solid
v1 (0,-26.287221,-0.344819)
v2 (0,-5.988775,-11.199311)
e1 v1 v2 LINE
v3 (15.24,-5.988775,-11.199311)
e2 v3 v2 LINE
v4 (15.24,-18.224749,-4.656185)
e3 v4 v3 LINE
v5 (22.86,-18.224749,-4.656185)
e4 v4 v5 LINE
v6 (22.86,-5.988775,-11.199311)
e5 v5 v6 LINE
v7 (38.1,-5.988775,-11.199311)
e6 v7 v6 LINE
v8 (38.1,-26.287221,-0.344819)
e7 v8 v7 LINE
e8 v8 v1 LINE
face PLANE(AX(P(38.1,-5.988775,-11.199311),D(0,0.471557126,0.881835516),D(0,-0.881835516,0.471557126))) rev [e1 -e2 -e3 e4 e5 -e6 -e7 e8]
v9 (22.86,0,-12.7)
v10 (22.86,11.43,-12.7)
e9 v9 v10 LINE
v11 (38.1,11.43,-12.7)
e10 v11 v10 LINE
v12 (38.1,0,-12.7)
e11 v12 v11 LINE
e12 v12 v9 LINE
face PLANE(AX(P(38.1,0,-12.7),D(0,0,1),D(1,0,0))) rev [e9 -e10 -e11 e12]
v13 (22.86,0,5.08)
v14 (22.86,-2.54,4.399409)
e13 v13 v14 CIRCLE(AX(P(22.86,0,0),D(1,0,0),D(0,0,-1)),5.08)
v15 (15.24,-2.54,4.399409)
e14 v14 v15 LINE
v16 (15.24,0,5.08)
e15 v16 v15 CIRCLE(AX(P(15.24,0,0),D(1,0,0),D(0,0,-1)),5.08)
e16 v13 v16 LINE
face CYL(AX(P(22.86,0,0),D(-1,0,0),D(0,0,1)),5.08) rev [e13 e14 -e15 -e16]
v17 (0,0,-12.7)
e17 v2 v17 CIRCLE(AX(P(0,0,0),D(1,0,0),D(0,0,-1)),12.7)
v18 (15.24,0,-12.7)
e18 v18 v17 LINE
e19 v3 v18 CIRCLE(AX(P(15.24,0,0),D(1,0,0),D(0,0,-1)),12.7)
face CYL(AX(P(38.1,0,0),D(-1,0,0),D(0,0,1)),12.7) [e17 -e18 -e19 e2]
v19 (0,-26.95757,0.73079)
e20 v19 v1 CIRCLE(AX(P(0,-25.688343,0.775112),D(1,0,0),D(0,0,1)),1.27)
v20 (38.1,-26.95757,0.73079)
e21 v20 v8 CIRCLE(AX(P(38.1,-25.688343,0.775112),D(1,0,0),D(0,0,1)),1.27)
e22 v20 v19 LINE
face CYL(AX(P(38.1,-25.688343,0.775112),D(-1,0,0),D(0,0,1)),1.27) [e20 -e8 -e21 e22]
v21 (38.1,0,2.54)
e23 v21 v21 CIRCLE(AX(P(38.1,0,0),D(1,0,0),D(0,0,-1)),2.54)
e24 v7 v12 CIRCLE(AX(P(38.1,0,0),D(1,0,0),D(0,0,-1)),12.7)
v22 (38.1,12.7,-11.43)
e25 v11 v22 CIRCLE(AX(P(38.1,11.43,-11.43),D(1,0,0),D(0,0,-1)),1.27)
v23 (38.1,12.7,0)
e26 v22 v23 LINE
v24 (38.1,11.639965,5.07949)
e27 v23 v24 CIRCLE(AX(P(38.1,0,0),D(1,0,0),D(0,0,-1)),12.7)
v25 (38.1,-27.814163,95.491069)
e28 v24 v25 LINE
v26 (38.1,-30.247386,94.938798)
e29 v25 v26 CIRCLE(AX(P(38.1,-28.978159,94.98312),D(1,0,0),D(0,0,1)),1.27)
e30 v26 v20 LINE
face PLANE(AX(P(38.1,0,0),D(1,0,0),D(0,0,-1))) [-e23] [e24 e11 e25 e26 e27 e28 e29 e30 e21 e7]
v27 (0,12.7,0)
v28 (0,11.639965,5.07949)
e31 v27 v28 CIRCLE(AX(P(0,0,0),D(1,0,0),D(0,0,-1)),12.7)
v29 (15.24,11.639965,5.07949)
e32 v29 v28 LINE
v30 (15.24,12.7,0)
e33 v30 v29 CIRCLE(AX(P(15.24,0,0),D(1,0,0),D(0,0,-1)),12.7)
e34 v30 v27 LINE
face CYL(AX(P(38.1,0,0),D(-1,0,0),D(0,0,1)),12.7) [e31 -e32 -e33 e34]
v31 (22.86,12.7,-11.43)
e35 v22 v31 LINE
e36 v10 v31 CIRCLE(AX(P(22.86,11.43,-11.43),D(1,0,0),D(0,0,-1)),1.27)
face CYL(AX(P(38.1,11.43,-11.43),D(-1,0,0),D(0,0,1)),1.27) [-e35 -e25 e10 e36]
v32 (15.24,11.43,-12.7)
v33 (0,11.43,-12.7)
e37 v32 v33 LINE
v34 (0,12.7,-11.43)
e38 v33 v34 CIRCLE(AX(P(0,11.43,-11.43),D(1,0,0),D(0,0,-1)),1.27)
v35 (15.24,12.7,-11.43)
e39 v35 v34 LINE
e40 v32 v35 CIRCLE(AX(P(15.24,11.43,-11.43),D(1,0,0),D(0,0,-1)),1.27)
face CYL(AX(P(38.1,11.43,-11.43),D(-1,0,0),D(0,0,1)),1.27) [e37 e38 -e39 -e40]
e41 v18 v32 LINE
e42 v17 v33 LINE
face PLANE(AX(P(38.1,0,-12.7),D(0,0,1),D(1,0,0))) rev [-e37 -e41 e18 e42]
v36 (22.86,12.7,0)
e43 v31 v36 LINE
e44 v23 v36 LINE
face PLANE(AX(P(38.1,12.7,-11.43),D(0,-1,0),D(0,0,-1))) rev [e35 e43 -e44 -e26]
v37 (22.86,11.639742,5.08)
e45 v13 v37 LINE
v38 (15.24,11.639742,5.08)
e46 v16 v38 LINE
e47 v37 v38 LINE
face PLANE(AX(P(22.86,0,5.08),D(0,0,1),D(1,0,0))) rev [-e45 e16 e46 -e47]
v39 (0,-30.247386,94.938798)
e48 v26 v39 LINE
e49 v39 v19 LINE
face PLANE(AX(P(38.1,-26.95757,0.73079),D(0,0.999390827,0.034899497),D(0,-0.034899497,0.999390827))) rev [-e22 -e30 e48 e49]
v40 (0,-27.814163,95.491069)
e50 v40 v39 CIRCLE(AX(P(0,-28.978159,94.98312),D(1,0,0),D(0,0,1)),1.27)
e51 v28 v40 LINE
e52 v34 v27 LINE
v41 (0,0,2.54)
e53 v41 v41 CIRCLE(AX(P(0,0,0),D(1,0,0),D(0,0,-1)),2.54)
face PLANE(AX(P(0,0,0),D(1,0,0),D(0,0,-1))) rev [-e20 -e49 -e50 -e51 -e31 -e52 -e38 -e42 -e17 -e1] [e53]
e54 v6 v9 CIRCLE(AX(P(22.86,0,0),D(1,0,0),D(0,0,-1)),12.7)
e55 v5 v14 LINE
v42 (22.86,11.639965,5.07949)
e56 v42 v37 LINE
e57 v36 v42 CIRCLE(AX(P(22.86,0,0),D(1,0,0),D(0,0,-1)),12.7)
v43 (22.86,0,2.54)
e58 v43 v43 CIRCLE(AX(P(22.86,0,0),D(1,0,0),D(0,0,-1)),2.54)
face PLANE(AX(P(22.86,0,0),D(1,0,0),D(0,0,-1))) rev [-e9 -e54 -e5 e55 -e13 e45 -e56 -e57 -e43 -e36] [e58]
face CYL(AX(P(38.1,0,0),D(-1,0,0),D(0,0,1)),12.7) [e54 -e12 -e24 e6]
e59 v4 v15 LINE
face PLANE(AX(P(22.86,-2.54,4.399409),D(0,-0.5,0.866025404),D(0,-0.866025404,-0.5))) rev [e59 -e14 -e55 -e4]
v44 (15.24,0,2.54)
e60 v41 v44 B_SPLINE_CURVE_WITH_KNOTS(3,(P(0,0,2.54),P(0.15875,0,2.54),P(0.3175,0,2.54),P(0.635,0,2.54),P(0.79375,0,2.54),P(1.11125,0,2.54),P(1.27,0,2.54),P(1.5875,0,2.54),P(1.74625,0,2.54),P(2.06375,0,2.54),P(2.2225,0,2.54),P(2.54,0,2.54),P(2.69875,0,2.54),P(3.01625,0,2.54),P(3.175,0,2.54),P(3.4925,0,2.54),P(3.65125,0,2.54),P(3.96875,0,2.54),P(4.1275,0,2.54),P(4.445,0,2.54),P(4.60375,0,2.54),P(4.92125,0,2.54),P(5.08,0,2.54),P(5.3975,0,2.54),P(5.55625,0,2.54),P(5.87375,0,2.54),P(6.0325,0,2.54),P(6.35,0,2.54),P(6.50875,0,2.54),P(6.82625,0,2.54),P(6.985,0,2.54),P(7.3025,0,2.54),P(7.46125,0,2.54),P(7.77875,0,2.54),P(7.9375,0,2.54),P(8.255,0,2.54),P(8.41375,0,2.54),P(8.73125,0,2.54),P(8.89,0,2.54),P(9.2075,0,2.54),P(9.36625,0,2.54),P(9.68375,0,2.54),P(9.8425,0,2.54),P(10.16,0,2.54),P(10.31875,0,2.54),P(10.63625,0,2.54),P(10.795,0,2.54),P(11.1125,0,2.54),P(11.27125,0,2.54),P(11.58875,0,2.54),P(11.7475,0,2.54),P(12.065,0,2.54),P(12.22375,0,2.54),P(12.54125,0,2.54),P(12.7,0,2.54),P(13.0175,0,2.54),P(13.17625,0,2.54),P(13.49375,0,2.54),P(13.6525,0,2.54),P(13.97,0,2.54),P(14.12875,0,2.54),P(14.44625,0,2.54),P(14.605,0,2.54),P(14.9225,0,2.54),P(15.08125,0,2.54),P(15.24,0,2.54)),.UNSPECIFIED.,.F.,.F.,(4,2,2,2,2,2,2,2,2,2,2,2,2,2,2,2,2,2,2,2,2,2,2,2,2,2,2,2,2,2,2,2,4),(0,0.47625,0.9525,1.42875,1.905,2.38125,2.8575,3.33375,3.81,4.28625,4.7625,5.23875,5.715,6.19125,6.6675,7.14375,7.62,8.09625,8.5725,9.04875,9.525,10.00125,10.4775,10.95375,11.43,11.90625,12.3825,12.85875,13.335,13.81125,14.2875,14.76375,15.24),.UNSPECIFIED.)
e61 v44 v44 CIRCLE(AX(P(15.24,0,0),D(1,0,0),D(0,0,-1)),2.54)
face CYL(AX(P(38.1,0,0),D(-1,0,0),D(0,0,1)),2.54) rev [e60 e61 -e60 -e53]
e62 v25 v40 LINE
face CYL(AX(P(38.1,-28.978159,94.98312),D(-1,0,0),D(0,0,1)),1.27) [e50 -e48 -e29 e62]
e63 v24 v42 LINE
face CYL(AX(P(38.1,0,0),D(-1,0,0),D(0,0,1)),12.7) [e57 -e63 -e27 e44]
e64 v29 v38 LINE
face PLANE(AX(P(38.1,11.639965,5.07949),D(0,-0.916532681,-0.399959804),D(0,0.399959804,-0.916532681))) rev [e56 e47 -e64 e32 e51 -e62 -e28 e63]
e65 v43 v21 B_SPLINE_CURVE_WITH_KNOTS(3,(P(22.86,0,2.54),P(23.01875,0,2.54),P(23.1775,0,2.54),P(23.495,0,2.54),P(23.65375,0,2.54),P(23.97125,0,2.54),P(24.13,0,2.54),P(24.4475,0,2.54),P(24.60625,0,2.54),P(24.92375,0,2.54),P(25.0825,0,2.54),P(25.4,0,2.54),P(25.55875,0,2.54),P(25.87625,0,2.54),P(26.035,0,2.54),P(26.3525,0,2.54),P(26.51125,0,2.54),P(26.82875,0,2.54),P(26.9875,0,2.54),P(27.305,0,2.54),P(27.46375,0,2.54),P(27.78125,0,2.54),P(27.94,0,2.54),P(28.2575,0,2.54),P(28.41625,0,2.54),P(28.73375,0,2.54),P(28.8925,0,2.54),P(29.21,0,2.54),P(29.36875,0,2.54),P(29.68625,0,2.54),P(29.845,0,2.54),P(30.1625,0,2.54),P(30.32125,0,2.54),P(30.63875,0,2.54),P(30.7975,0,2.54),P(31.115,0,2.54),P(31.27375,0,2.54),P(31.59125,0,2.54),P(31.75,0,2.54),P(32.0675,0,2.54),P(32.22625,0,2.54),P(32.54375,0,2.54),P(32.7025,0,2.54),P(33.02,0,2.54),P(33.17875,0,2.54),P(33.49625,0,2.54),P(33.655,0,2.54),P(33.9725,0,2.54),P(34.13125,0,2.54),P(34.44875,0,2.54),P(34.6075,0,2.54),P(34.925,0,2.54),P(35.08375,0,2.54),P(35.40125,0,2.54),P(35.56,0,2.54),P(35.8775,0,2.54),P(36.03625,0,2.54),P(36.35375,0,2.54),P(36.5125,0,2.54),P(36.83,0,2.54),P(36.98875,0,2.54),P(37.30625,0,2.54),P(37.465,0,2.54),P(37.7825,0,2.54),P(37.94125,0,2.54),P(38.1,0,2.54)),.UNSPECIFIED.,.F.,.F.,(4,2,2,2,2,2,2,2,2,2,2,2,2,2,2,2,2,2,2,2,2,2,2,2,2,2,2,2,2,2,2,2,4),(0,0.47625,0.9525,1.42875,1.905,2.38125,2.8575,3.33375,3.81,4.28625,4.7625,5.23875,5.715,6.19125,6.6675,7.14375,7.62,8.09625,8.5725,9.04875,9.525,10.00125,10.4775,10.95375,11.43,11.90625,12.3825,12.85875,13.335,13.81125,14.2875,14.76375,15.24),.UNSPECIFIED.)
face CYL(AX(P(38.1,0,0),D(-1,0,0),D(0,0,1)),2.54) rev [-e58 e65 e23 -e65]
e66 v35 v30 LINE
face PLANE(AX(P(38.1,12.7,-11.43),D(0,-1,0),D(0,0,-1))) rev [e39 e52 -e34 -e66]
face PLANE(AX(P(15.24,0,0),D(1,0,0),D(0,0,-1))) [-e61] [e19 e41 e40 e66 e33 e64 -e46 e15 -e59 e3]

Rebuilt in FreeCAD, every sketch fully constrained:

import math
import FreeCAD as App
import Part
import Sketcher
from FreeCAD import Vector
Q = App.Units.Quantity

doc = App.newDocument("Part")
body = doc.addObject("PartDesign::Body", "Body")

sketch1 = doc.addObject("Sketcher::SketchObject", "Sketch")
body.addObject(sketch1)
sketch1.AttachmentSupport = (doc.YZ_Plane, [""])
sketch1.MapMode = "FlatFace"
sketch1.addGeometry(Part.LineSegment(Vector(-26.287221, -0.344819, 0), Vector(-5.988775, -11.199311, 0)), False)
sketch1.addGeometry(Part.ArcOfCircle(Part.Circle(Vector(0, 0, 0), Vector(0, 0, 1), 12.7), math.radians(-118.13542), math.radians(-90)), False)
sketch1.addGeometry(Part.LineSegment(Vector(0, -12.7, 0), Vector(11.43, -12.7, 0)), False)
sketch1.addGeometry(Part.ArcOfCircle(Part.Circle(Vector(11.43, -11.43, 0), Vector(0, 0, 1), 1.27), math.radians(-90), math.radians(0)), False)
sketch1.addGeometry(Part.LineSegment(Vector(12.7, -11.43, 0), Vector(12.7, 0, 0)), False)
sketch1.addGeometry(Part.ArcOfCircle(Part.Circle(Vector(0, 0, 0), Vector(0, 0, 1), 12.7), math.radians(0), math.radians(23.575666)), False)
sketch1.addGeometry(Part.LineSegment(Vector(11.639965, 5.07949, 0), Vector(-27.814163, 95.491069, 0)), False)
sketch1.addGeometry(Part.ArcOfCircle(Part.Circle(Vector(-28.978159, 94.98312, 0), Vector(0, 0, 1), 1.27), math.radians(23.575666), math.radians(182)), False)
sketch1.addGeometry(Part.LineSegment(Vector(-30.247386, 94.938798, 0), Vector(-26.95757, 0.73079, 0)), False)
sketch1.addGeometry(Part.ArcOfCircle(Part.Circle(Vector(-25.688343, 0.775112, 0), Vector(0, 0, 1), 1.27), math.radians(-178), math.radians(-118.135421)), False)
sketch1.addGeometry(Part.Circle(Vector(0, 0, 0), Vector(0, 0, 1), 2.54), False)
sketch1.addConstraint(Sketcher.Constraint("Tangent", 0, 2, 1, 1))
sketch1.addConstraint(Sketcher.Constraint("Tangent", 1, 2, 2, 1))
sketch1.addConstraint(Sketcher.Constraint("Tangent", 2, 2, 3, 1))
sketch1.addConstraint(Sketcher.Constraint("Tangent", 3, 2, 4, 1))
sketch1.addConstraint(Sketcher.Constraint("Tangent", 4, 2, 5, 1))
sketch1.addConstraint(Sketcher.Constraint("Tangent", 5, 2, 6, 1))
sketch1.addConstraint(Sketcher.Constraint("Tangent", 6, 2, 7, 1))
sketch1.addConstraint(Sketcher.Constraint("Tangent", 7, 2, 8, 1))
sketch1.addConstraint(Sketcher.Constraint("Tangent", 8, 2, 9, 1))
sketch1.addConstraint(Sketcher.Constraint("Tangent", 9, 2, 0, 1))
sketch1.addConstraint(Sketcher.Constraint("Horizontal", 2))
sketch1.addConstraint(Sketcher.Constraint("Vertical", 4))
sketch1.addConstraint(Sketcher.Constraint("Coincident", 1, 3, -1, 1))
sketch1.addConstraint(Sketcher.Constraint("Coincident", 5, 3, -1, 1))
sketch1.addConstraint(Sketcher.Constraint("Coincident", 10, 3, -1, 1))
sketch1.addConstraint(Sketcher.Constraint("Equal", 1, 5))
sketch1.addConstraint(Sketcher.Constraint("Equal", 3, 7))
sketch1.addConstraint(Sketcher.Constraint("Equal", 7, 9))
sketch1.addConstraint(Sketcher.Constraint("Diameter", 10, Q("0.2 in")))
sketch1.addConstraint(Sketcher.Constraint("Radius", 1, Q("0.5 in")))
sketch1.addConstraint(Sketcher.Constraint("Radius", 3, Q("0.05 in")))
sketch1.addConstraint(Sketcher.Constraint("Angle", 8, Q("-88 deg")))
sketch1.addConstraint(Sketcher.Constraint("DistanceY", 0, 2, 8, 2, Q("11.930101 mm")))
sketch1.addConstraint(Sketcher.Constraint("Distance", 8, Q("94.265432 mm")))
sketch1.addConstraint(Sketcher.Constraint("DistanceX", 7, 3, -1, 1, Q("28.978159 mm")))
pad1 = doc.addObject("PartDesign::Pad", "Pad")
body.addObject(pad1)
pad1.Profile = sketch1
pad1.Length = Q("1.5 in")

sketch2 = doc.addObject("Sketcher::SketchObject", "Sketch001")
body.addObject(sketch2)
sketch2.AttachmentSupport = (doc.YZ_Plane, [""])
sketch2.MapMode = "FlatFace"
sketch2.AttachmentOffset = App.Placement(Vector(0, 0, 0.75 * 25.4), App.Rotation())
sketch2.addGeometry(Part.LineSegment(Vector(25.792215, 5.08, 0), Vector(0, 5.08, 0)), False)
sketch2.addGeometry(Part.ArcOfCircle(Part.Circle(Vector(0, 0, 0), Vector(0, 0, 1), 5.08), math.radians(90), math.radians(120)), False)
sketch2.addGeometry(Part.LineSegment(Vector(-2.54, 4.399409, 0), Vector(-34.706742, -14.172068, 0)), False)
sketch2.addGeometry(Part.LineSegment(Vector(-34.706742, -14.172068, 0), Vector(25.792215, -14.172068, 0)), False)
sketch2.addGeometry(Part.LineSegment(Vector(25.792215, -14.172068, 0), Vector(25.792215, 5.08, 0)), False)
sketch2.addConstraint(Sketcher.Constraint("Tangent", 0, 2, 1, 1))
sketch2.addConstraint(Sketcher.Constraint("Tangent", 1, 2, 2, 1))
sketch2.addConstraint(Sketcher.Constraint("Coincident", 2, 2, 3, 1))
sketch2.addConstraint(Sketcher.Constraint("Coincident", 3, 2, 4, 1))
sketch2.addConstraint(Sketcher.Constraint("Coincident", 4, 2, 0, 1))
sketch2.addConstraint(Sketcher.Constraint("Horizontal", 0))
sketch2.addConstraint(Sketcher.Constraint("Horizontal", 3))
sketch2.addConstraint(Sketcher.Constraint("Vertical", 4))
sketch2.addConstraint(Sketcher.Constraint("Coincident", 1, 3, -1, 1))
sketch2.addConstraint(Sketcher.Constraint("Radius", 1, Q("0.2 in")))
sketch2.addConstraint(Sketcher.Constraint("Angle", 2, Q("-150 deg")))
sketch2.addConstraint(Sketcher.Constraint("DistanceX", 0, 2, 0, 1, Q("25.792215 mm")))
sketch2.addConstraint(Sketcher.Constraint("DistanceX", 3, 1, 3, 2, Q("60.498956 mm")))
pocket1 = doc.addObject("PartDesign::Pocket", "Pocket")
body.addObject(pocket1)
pocket1.Profile = sketch2
pocket1.Type = "TwoLengths"
pocket1.Length = Q("0.15 in")
pocket1.Length2 = Q("0.15 in")
pocket1.Reversed = True

doc.recompute()
